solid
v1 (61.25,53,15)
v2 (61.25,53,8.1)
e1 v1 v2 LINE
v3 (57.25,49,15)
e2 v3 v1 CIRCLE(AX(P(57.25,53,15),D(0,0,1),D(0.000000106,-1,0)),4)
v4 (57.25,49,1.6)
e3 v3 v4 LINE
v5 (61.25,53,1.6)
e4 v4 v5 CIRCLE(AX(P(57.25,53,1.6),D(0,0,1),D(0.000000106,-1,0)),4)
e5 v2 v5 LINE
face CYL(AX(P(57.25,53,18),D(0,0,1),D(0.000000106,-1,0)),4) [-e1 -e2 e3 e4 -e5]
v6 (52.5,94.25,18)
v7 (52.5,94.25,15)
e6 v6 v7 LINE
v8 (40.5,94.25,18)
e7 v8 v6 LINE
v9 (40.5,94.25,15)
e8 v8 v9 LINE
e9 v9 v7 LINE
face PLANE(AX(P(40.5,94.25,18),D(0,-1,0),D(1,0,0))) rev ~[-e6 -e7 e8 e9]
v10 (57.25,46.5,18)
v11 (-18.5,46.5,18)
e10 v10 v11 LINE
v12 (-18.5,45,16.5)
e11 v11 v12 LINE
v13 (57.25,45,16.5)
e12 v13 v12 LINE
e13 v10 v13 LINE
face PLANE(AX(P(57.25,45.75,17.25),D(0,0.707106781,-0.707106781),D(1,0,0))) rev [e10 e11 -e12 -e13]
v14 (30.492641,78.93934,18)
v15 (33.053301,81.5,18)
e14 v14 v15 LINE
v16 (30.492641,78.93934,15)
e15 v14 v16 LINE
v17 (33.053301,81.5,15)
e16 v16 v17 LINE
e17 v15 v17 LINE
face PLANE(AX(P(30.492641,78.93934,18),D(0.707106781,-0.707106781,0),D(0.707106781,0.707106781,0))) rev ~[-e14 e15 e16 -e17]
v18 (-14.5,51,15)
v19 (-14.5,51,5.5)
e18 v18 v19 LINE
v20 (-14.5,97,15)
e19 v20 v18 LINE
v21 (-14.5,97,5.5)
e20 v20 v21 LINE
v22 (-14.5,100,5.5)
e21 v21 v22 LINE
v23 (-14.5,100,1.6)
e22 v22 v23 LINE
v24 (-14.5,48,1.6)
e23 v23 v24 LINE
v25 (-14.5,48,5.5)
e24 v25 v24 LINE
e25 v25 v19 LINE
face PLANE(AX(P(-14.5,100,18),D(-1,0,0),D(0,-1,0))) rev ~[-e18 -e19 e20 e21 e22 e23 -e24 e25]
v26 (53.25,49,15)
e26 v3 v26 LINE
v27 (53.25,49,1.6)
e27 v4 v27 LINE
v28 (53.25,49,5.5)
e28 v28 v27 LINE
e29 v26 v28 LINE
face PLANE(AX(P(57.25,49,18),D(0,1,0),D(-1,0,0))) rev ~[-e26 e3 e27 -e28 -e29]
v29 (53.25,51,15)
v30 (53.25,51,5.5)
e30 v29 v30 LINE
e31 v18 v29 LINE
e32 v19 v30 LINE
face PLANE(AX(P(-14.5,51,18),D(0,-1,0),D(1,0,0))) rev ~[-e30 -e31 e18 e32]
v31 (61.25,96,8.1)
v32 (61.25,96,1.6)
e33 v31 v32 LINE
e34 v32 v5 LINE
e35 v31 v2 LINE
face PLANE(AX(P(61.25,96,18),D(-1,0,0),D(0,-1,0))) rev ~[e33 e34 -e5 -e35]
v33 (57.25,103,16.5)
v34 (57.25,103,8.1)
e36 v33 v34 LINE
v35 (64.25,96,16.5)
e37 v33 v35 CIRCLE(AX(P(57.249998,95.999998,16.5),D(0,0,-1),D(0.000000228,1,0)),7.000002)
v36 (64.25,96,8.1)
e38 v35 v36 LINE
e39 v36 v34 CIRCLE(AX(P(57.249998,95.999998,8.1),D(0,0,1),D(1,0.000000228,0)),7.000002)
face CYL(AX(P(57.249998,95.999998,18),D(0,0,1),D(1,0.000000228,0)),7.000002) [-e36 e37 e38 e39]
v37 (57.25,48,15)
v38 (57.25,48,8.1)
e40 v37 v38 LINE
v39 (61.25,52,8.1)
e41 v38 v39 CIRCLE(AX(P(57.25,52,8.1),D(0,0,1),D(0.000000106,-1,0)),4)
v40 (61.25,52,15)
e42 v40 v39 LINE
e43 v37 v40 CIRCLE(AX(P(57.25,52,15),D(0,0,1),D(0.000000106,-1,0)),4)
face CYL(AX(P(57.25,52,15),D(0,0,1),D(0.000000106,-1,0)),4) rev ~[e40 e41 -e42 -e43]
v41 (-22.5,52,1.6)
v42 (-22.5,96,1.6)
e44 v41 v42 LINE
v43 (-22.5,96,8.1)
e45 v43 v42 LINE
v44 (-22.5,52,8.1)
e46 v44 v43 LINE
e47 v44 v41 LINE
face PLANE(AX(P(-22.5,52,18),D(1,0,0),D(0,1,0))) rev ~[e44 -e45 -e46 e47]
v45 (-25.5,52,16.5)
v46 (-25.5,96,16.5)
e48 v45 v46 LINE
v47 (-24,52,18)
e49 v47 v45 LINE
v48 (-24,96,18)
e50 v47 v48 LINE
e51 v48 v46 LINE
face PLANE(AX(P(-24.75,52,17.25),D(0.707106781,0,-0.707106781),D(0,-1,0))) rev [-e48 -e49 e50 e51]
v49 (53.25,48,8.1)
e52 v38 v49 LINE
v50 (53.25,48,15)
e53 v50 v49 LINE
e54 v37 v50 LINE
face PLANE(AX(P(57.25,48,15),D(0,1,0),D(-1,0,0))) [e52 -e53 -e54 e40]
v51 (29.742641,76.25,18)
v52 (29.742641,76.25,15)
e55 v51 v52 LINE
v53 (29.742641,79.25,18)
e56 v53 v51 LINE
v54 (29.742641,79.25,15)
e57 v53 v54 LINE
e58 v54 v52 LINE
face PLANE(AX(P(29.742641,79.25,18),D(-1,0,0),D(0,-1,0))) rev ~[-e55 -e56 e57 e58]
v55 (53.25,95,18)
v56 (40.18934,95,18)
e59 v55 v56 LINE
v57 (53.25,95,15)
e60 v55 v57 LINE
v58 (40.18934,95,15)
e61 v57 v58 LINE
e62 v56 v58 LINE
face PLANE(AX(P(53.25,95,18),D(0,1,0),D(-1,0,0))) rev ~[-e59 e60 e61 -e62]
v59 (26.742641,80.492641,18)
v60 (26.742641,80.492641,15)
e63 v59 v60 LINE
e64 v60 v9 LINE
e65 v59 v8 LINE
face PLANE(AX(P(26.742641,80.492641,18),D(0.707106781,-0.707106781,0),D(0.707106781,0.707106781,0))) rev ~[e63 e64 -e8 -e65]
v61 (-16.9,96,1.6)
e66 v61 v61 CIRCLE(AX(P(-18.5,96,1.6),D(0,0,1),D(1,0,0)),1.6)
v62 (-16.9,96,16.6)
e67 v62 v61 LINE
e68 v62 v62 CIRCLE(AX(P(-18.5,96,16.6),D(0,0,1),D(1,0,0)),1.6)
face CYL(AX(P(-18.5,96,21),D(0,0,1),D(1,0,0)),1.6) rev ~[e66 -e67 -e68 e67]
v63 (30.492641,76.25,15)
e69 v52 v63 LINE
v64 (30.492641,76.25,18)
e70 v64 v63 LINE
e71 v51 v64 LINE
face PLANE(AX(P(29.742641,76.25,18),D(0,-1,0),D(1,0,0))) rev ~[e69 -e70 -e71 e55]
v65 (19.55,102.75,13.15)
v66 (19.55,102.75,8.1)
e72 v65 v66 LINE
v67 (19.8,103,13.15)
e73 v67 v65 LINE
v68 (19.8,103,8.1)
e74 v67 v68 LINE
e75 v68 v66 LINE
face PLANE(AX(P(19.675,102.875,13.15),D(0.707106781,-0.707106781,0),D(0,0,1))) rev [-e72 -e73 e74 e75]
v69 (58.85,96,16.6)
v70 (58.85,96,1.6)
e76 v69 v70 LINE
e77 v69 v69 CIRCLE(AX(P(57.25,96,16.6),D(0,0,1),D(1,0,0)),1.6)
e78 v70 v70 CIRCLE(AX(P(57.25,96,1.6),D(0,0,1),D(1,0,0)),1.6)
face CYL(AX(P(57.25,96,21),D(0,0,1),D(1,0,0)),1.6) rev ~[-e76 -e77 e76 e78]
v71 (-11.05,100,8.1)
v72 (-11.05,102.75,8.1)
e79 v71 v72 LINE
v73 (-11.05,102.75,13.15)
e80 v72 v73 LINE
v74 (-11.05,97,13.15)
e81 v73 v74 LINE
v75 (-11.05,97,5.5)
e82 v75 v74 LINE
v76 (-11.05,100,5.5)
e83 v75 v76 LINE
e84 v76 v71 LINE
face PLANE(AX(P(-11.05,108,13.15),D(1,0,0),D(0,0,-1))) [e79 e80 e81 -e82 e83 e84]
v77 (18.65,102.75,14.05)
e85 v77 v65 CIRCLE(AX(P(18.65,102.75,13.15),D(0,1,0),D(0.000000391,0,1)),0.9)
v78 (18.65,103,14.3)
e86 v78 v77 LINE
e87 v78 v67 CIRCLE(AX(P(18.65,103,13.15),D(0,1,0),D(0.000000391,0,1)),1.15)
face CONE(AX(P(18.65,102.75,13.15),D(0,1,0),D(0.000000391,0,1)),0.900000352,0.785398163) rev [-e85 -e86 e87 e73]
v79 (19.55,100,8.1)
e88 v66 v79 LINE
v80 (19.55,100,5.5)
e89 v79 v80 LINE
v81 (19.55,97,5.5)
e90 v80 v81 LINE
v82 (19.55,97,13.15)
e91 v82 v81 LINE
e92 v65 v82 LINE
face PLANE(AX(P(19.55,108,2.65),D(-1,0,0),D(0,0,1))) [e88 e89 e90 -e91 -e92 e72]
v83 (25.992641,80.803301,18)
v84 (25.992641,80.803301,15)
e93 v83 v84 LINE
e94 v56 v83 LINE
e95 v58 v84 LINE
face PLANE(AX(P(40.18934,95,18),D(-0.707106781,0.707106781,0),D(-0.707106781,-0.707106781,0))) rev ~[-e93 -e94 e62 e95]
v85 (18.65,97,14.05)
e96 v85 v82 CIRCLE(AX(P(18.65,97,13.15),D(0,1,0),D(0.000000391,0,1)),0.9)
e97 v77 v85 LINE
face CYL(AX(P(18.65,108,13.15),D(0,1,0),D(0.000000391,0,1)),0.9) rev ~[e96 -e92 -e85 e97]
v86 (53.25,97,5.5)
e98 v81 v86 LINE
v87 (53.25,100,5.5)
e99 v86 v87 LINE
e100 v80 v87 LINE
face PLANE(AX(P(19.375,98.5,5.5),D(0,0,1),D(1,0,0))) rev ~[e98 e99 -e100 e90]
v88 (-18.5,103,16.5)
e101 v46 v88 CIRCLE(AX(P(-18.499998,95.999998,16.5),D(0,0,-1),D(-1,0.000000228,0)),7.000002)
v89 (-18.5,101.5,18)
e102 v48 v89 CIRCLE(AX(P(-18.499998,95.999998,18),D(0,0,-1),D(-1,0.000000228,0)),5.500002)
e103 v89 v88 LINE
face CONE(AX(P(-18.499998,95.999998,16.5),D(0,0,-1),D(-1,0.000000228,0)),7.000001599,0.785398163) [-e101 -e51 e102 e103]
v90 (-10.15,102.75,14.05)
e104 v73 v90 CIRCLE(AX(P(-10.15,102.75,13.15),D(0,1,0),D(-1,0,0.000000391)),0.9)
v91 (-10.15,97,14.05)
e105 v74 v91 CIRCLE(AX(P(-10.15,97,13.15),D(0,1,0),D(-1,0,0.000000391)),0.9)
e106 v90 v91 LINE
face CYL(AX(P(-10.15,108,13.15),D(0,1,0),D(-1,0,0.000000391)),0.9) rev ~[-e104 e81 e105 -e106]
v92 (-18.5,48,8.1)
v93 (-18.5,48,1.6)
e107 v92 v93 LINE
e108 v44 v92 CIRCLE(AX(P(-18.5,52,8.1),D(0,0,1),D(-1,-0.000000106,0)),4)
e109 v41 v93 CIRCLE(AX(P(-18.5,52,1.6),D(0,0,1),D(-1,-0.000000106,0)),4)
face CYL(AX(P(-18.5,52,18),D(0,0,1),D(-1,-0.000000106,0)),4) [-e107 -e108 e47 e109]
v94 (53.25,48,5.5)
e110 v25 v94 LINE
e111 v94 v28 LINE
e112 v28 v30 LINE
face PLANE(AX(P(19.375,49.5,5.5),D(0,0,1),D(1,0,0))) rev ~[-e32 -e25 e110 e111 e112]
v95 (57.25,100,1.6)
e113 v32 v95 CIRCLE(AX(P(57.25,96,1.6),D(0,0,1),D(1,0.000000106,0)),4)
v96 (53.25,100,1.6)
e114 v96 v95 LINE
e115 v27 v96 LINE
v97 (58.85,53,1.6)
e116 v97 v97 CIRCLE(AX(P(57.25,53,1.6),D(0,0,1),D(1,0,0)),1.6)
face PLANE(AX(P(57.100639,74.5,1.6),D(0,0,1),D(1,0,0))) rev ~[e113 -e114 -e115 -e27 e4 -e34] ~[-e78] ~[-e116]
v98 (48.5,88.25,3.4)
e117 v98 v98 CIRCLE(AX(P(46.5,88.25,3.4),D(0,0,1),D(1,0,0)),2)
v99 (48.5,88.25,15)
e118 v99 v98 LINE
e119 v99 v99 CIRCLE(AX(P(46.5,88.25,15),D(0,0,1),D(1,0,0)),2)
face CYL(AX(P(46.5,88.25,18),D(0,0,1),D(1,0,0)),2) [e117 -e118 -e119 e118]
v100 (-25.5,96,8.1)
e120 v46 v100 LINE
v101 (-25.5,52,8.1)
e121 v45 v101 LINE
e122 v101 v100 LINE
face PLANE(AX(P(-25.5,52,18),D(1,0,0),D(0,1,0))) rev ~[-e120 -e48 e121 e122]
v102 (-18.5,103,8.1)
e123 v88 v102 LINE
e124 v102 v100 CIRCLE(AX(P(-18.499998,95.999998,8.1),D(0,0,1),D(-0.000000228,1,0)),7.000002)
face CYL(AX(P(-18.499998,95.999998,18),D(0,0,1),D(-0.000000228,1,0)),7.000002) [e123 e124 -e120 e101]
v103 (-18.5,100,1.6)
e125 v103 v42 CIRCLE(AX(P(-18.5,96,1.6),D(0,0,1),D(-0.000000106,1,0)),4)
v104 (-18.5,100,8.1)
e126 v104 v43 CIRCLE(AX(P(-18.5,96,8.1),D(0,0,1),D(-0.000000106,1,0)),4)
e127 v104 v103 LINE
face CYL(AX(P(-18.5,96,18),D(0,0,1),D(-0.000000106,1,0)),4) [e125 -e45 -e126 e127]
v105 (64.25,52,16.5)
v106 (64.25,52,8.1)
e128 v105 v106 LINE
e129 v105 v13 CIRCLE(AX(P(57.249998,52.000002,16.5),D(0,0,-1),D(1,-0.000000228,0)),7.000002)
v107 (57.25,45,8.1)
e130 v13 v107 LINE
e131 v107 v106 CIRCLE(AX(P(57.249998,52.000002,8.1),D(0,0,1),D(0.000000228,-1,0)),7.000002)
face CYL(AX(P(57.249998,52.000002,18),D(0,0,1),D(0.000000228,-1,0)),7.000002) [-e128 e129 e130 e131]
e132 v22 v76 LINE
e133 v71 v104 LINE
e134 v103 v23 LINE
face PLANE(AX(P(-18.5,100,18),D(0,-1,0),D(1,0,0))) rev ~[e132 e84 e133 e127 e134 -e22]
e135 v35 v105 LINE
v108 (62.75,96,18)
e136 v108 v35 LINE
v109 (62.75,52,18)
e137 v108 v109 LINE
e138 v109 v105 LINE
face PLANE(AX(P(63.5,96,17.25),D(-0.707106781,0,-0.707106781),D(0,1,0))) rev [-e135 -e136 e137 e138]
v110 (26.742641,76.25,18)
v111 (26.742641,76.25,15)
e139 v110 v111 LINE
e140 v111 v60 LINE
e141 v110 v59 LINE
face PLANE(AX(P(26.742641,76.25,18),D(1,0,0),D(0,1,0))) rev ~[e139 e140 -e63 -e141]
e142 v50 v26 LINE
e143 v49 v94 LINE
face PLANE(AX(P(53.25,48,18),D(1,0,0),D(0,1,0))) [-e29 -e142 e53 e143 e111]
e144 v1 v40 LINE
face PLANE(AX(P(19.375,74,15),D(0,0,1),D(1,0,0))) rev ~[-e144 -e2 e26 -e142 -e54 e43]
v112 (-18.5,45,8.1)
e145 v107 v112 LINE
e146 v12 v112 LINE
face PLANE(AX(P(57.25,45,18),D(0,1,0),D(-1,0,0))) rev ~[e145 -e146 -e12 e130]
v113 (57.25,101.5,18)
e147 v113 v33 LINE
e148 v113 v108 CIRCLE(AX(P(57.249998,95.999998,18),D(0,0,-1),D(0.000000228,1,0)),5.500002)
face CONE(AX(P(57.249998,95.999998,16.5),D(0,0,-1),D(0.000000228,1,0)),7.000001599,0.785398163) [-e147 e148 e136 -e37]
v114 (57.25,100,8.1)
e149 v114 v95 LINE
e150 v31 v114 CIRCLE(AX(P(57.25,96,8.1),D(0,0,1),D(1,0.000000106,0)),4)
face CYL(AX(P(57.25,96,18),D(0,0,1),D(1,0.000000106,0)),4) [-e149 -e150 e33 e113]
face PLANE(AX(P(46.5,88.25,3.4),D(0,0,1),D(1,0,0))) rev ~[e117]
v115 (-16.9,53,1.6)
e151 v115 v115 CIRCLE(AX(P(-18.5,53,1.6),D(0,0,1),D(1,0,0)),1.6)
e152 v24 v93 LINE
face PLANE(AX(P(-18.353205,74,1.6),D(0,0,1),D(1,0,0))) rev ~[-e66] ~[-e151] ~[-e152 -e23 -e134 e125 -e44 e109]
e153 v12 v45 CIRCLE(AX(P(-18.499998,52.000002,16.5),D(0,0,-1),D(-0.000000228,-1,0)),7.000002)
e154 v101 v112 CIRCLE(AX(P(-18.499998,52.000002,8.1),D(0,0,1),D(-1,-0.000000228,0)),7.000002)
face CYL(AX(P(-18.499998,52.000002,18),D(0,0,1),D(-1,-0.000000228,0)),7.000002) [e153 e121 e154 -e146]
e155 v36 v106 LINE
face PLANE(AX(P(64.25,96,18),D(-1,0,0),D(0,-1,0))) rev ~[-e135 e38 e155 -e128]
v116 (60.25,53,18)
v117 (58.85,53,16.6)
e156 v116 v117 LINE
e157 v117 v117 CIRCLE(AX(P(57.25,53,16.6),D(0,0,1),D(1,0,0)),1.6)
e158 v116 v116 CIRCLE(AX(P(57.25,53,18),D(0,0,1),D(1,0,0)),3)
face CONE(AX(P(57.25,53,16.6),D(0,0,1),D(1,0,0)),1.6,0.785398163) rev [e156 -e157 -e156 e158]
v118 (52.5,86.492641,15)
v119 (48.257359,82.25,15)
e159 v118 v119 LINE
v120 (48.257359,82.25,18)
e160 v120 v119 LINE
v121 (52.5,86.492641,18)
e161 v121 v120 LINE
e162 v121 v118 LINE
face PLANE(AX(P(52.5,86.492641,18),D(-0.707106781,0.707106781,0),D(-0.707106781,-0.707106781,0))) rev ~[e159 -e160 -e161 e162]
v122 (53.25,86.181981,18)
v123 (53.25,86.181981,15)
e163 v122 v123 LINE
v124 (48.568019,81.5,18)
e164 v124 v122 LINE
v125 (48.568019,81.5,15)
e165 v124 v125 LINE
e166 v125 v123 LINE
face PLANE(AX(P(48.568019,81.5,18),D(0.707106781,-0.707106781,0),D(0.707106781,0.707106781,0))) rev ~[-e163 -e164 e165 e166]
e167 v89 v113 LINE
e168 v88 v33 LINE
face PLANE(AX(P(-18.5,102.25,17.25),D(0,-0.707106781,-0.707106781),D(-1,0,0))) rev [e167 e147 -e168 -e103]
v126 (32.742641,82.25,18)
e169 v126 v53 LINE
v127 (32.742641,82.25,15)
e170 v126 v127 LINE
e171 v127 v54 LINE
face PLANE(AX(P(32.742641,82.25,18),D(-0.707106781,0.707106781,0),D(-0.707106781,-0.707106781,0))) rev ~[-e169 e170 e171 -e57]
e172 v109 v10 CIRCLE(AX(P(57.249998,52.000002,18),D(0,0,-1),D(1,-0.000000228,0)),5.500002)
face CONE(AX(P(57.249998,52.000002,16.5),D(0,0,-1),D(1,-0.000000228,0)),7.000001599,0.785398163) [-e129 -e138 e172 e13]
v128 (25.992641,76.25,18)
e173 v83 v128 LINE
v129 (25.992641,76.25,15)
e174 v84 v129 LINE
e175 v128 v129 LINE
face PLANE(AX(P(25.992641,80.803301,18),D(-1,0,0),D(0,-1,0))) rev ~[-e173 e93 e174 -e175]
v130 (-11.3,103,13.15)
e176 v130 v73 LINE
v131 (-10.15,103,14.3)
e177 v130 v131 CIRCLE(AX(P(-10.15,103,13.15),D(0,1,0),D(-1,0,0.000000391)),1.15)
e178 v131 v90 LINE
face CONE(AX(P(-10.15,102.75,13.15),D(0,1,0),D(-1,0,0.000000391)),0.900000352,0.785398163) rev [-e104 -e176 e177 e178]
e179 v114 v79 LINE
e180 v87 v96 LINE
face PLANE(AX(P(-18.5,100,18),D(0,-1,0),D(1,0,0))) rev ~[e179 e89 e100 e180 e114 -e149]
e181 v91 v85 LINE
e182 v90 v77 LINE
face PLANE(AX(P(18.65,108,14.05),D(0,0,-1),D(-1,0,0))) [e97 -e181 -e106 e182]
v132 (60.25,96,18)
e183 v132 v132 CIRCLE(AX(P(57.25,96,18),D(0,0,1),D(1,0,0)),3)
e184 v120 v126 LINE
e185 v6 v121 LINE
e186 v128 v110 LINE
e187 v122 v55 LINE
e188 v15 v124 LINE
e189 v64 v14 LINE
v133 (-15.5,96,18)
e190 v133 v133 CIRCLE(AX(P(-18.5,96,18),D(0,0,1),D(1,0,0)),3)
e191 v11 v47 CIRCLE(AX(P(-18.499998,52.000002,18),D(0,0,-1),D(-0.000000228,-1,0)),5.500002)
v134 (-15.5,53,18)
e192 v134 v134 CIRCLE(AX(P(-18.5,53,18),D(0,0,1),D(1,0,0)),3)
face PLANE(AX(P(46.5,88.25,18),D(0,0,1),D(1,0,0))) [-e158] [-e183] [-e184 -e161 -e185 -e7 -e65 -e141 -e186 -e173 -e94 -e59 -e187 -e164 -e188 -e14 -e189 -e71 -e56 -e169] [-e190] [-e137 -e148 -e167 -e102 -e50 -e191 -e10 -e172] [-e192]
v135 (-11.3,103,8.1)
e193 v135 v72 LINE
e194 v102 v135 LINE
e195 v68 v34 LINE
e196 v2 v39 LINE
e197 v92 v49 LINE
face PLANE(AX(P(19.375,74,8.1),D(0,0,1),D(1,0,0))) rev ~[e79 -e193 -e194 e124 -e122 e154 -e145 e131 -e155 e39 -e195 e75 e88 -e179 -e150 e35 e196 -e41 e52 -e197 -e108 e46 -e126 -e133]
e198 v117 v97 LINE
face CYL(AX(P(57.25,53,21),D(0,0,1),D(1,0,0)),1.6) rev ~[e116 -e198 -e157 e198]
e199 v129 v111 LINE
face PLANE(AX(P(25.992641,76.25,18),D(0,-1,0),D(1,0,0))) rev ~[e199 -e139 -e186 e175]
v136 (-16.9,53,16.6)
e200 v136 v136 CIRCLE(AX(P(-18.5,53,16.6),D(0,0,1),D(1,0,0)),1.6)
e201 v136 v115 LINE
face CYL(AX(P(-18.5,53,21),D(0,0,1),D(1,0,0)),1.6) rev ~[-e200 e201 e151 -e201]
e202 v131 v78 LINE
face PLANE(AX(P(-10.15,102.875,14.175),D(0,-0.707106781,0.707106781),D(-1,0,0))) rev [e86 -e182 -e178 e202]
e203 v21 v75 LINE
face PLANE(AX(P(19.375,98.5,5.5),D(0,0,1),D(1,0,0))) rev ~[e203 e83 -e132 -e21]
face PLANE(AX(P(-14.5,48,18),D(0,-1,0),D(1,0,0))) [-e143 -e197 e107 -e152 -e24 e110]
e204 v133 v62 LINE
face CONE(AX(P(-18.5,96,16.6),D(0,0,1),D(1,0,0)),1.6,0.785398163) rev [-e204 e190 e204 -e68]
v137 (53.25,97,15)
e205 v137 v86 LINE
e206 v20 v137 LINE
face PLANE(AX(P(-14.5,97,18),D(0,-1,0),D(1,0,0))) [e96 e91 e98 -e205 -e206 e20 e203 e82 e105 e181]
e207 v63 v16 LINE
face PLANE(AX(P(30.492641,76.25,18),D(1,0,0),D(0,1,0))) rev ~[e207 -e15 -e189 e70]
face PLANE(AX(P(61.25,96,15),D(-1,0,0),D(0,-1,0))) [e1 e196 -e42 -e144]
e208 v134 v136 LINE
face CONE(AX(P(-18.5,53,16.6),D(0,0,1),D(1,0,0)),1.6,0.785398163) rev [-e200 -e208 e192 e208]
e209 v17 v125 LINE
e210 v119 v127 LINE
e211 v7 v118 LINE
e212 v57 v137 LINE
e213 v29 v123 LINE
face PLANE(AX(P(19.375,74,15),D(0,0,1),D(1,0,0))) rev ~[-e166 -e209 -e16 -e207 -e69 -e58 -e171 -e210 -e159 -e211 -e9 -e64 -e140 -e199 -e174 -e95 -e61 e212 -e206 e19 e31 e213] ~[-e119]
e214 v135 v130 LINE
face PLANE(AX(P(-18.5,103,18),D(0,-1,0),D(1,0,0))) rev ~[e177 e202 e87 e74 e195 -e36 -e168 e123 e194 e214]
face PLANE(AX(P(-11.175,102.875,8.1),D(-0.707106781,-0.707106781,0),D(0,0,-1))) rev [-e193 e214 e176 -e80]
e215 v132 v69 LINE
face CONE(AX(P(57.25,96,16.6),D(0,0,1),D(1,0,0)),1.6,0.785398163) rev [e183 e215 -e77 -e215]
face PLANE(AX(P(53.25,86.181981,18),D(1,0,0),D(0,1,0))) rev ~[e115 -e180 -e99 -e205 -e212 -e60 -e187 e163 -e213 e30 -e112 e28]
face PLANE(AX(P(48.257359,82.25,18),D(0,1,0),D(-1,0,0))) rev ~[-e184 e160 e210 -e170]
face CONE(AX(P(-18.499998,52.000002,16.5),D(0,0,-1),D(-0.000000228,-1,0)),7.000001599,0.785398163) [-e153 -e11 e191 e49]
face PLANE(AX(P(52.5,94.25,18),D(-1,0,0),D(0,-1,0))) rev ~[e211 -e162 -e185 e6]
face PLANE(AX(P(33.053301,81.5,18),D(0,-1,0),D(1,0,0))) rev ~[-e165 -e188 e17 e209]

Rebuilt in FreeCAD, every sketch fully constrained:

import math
import FreeCAD as App
import Part
import Sketcher
Q = App.Units.Quantity


def edges_at(feature, points):
    """Names of the edges that pass closest to the given points."""
    edges = feature.Shape.Edges
    near = lambda p: min(range(len(edges)), key=lambda i: edges[i].distToShape(Part.Vertex(*p))[0])
    return sorted({f"Edge{near(p) + 1}" for p in points})

doc = App.newDocument("Part")
body = doc.addObject("PartDesign::Body", "Body")

sketch1 = body.newObject("Sketcher::SketchObject", "Sketch")
sketch1.AttachmentSupport = (doc.getObject("XY_Plane"), [""])
sketch1.MapMode = "FlatFace"
sketch1.AttachmentOffset = App.Placement(App.Vector(0, 0, 18), App.Rotation())
sketch1.addGeometry(Part.ArcOfCircle(Part.Circle(App.Vector(-18, 96, 0), App.Vector(0, 0, 1), 7), math.radians(90), math.radians(180)), False)
sketch1.addGeometry(Part.LineSegment(App.Vector(-26, 96, 0), App.Vector(-26, 52, 0)), False)
sketch1.addGeometry(Part.ArcOfCircle(Part.Circle(App.Vector(-18, 52, 0), App.Vector(0, 0, 1), 7), math.radians(-180), math.radians(-90)), False)
sketch1.addGeometry(Part.LineSegment(App.Vector(-18, 45, 0), App.Vector(57, 45, 0)), False)
sketch1.addGeometry(Part.ArcOfCircle(Part.Circle(App.Vector(57, 52, 0), App.Vector(0, 0, 1), 7), math.radians(-90), math.radians(0)), False)
sketch1.addGeometry(Part.LineSegment(App.Vector(64, 52, 0), App.Vector(64, 96, 0)), False)
sketch1.addGeometry(Part.ArcOfCircle(Part.Circle(App.Vector(57, 96, 0), App.Vector(0, 0, 1), 7), math.radians(0), math.radians(90)), False)
sketch1.addGeometry(Part.LineSegment(App.Vector(57, 103, 0), App.Vector(-18, 103, 0)), False)
sketch1.addConstraint(Sketcher.Constraint("Tangent", 0, 2, 1, 1))
sketch1.addConstraint(Sketcher.Constraint("Tangent", 1, 2, 2, 1))
sketch1.addConstraint(Sketcher.Constraint("Tangent", 2, 2, 3, 1))
sketch1.addConstraint(Sketcher.Constraint("Tangent", 3, 2, 4, 1))
sketch1.addConstraint(Sketcher.Constraint("Tangent", 4, 2, 5, 1))
sketch1.addConstraint(Sketcher.Constraint("Tangent", 5, 2, 6, 1))
sketch1.addConstraint(Sketcher.Constraint("Tangent", 6, 2, 7, 1))
sketch1.addConstraint(Sketcher.Constraint("Tangent", 7, 2, 0, 1))
sketch1.addConstraint(Sketcher.Constraint("Vertical", 1))
sketch1.addConstraint(Sketcher.Constraint("Horizontal", 3))
sketch1.addConstraint(Sketcher.Constraint("Vertical", 5))
sketch1.addConstraint(Sketcher.Constraint("Horizontal", 7))
sketch1.addConstraint(Sketcher.Constraint("Equal", 0, 2))
sketch1.addConstraint(Sketcher.Constraint("Equal", 2, 4))
sketch1.addConstraint(Sketcher.Constraint("Equal", 4, 6))
sketch1.addConstraint(Sketcher.Constraint("Radius", 0, 7.000002))
sketch1.addConstraint(Sketcher.Constraint("DistanceY", 1, 2, 1, 1, 44.0))
sketch1.addConstraint(Sketcher.Constraint("DistanceY", -1, 1, 0, 3, 95.999998))
sketch1.addConstraint(Sketcher.Constraint("DistanceX", 3, 1, 3, 2, 75.75))
sketch1.addConstraint(Sketcher.Constraint("DistanceX", 0, 3, -1, 1, 18.499998))
pad1 = body.newObject("PartDesign::Pad", "Pad")
pad1.Profile = sketch1
pad1.Length = 9.9
pad1.Reversed = True

sketch2 = body.newObject("Sketcher::SketchObject", "Sketch001")
sketch2.AttachmentSupport = (doc.getObject("XY_Plane"), [""])
sketch2.MapMode = "FlatFace"
sketch2.AttachmentOffset = App.Placement(App.Vector(0, 0, 15), App.Rotation())
sketch2.addGeometry(Part.ArcOfCircle(Part.Circle(App.Vector(-18.5, 96, 0), App.Vector(0, 0, 1), 4), math.radians(90), math.radians(180)), False)
sketch2.addGeometry(Part.LineSegment(App.Vector(-22.5, 96, 0), App.Vector(-22.5, 52, 0)), False)
sketch2.addGeometry(Part.ArcOfCircle(Part.Circle(App.Vector(-18.5, 52, 0), App.Vector(0, 0, 1), 4), math.radians(-180), math.radians(-90)), False)
sketch2.addGeometry(Part.LineSegment(App.Vector(-18.5, 48, 0), App.Vector(57.2, 48, 0)), False)
sketch2.addGeometry(Part.ArcOfCircle(Part.Circle(App.Vector(57.2, 52, 0), App.Vector(0, 0, 1), 4), math.radians(-90), math.radians(0)), False)
sketch2.addGeometry(Part.LineSegment(App.Vector(61.2, 52, 0), App.Vector(61.2, 96, 0)), False)
sketch2.addGeometry(Part.ArcOfCircle(Part.Circle(App.Vector(57.2, 96, 0), App.Vector(0, 0, 1), 4), math.radians(0), math.radians(90)), False)
sketch2.addGeometry(Part.LineSegment(App.Vector(57.2, 100, 0), App.Vector(-18.5, 100, 0)), False)
sketch2.addConstraint(Sketcher.Constraint("Tangent", 0, 2, 1, 1))
sketch2.addConstraint(Sketcher.Constraint("Tangent", 1, 2, 2, 1))
sketch2.addConstraint(Sketcher.Constraint("Tangent", 2, 2, 3, 1))
sketch2.addConstraint(Sketcher.Constraint("Tangent", 3, 2, 4, 1))
sketch2.addConstraint(Sketcher.Constraint("Tangent", 4, 2, 5, 1))
sketch2.addConstraint(Sketcher.Constraint("Tangent", 5, 2, 6, 1))
sketch2.addConstraint(Sketcher.Constraint("Tangent", 6, 2, 7, 1))
sketch2.addConstraint(Sketcher.Constraint("Tangent", 7, 2, 0, 1))
sketch2.addConstraint(Sketcher.Constraint("Vertical", 1))
sketch2.addConstraint(Sketcher.Constraint("Horizontal", 3))
sketch2.addConstraint(Sketcher.Constraint("Vertical", 5))
sketch2.addConstraint(Sketcher.Constraint("Horizontal", 7))
sketch2.addConstraint(Sketcher.Constraint("Equal", 0, 2))
sketch2.addConstraint(Sketcher.Constraint("Equal", 2, 4))
sketch2.addConstraint(Sketcher.Constraint("Equal", 4, 6))
sketch2.addConstraint(Sketcher.Constraint("Radius", 0, 4.0))
sketch2.addConstraint(Sketcher.Constraint("DistanceY", 1, 2, 1, 1, 44.0))
sketch2.addConstraint(Sketcher.Constraint("DistanceY", -1, 1, 0, 3, 96.0))
sketch2.addConstraint(Sketcher.Constraint("DistanceX", 3, 1, 3, 2, 75.75))
sketch2.addConstraint(Sketcher.Constraint("DistanceX", 0, 3, -1, 1, 18.5))
pocket1 = body.newObject("PartDesign::Pocket", "Pocket")
pocket1.Profile = sketch2
pocket1.Length = 10

sketch3 = body.newObject("Sketcher::SketchObject", "Sketch002")
sketch3.AttachmentSupport = (doc.getObject("XY_Plane"), [""])
sketch3.MapMode = "FlatFace"
sketch3.AttachmentOffset = App.Placement(App.Vector(0, 0, 18), App.Rotation())
sketch3.addGeometry(Part.ArcOfCircle(Part.Circle(App.Vector(-18.5, 52, 0), App.Vector(0, 0, 1), 4), math.radians(-180), math.radians(-90)), False)
sketch3.addGeometry(Part.LineSegment(App.Vector(-18.5, 48, 0), App.Vector(-14.5, 48, 0)), False)
sketch3.addGeometry(Part.LineSegment(App.Vector(-14.5, 48, 0), App.Vector(-14.5, 100, 0)), False)
sketch3.addGeometry(Part.LineSegment(App.Vector(-14.5, 100, 0), App.Vector(-18.5, 100, 0)), False)
sketch3.addGeometry(Part.ArcOfCircle(Part.Circle(App.Vector(-18.5, 96, 0), App.Vector(0, 0, 1), 4), math.radians(90), math.radians(180)), False)
sketch3.addGeometry(Part.LineSegment(App.Vector(-22.5, 96, 0), App.Vector(-22.5, 52, 0)), False)
sketch3.addGeometry(Part.ArcOfCircle(Part.Circle(App.Vector(57.2, 96, 0), App.Vector(0, 0, 1), 4), math.radians(0), math.radians(90)), False)
sketch3.addGeometry(Part.LineSegment(App.Vector(57.2, 100, 0), App.Vector(53.2, 100, 0)), False)
sketch3.addGeometry(Part.LineSegment(App.Vector(53.2, 100, 0), App.Vector(53.2, 49, 0)), False)
sketch3.addGeometry(Part.LineSegment(App.Vector(53.2, 49, 0), App.Vector(57.2, 49, 0)), False)
sketch3.addGeometry(Part.ArcOfCircle(Part.Circle(App.Vector(57.2, 53, 0), App.Vector(0, 0, 1), 4), math.radians(-90), math.radians(0)), False)
sketch3.addGeometry(Part.LineSegment(App.Vector(61.2, 53, 0), App.Vector(61.2, 96, 0)), False)
sketch3.addConstraint(Sketcher.Constraint("Tangent", 0, 2, 1, 1))
sketch3.addConstraint(Sketcher.Constraint("Coincident", 1, 2, 2, 1))
sketch3.addConstraint(Sketcher.Constraint("Coincident", 2, 2, 3, 1))
sketch3.addConstraint(Sketcher.Constraint("Tangent", 3, 2, 4, 1))
sketch3.addConstraint(Sketcher.Constraint("Tangent", 4, 2, 5, 1))
sketch3.addConstraint(Sketcher.Constraint("Tangent", 5, 2, 0, 1))
sketch3.addConstraint(Sketcher.Constraint("Tangent", 6, 2, 7, 1))
sketch3.addConstraint(Sketcher.Constraint("Coincident", 7, 2, 8, 1))
sketch3.addConstraint(Sketcher.Constraint("Coincident", 8, 2, 9, 1))
sketch3.addConstraint(Sketcher.Constraint("Tangent", 9, 2, 10, 1))
sketch3.addConstraint(Sketcher.Constraint("Tangent", 10, 2, 11, 1))
sketch3.addConstraint(Sketcher.Constraint("Tangent", 11, 2, 6, 1))
sketch3.addConstraint(Sketcher.Constraint("Horizontal", 1))
sketch3.addConstraint(Sketcher.Constraint("Vertical", 2))
sketch3.addConstraint(Sketcher.Constraint("Horizontal", 3))
sketch3.addConstraint(Sketcher.Constraint("Vertical", 5))
sketch3.addConstraint(Sketcher.Constraint("Horizontal", 7))
sketch3.addConstraint(Sketcher.Constraint("Vertical", 8))
sketch3.addConstraint(Sketcher.Constraint("Horizontal", 9))
sketch3.addConstraint(Sketcher.Constraint("Vertical", 11))
sketch3.addConstraint(Sketcher.Constraint("Equal", 0, 4))
sketch3.addConstraint(Sketcher.Constraint("Equal", 4, 6))
sketch3.addConstraint(Sketcher.Constraint("Equal", 6, 10))
sketch3.addConstraint(Sketcher.Constraint("Horizontal", 4, 3, 6, 3))
sketch3.addConstraint(Sketcher.Constraint("Equal", 3, 7))
sketch3.addConstraint(Sketcher.Constraint("Radius", 0, 4.0))
sketch3.addConstraint(Sketcher.Constraint("DistanceX", 1, 1, 1, 2, 4.0))
sketch3.addConstraint(Sketcher.Constraint("DistanceY", 2, 1, 2, 2, 52.0))
sketch3.addConstraint(Sketcher.Constraint("DistanceY", 8, 2, 8, 1, 51.0))
sketch3.addConstraint(Sketcher.Constraint("DistanceY", -1, 1, 0, 3, 52.0))
sketch3.addConstraint(Sketcher.Constraint("DistanceX", 0, 3, -1, 1, 18.5))
sketch3.addConstraint(Sketcher.Constraint("DistanceX", -1, 1, 6, 3, 57.25))
pad2 = body.newObject("PartDesign::Pad", "Pad001")
pad2.Profile = sketch3
pad2.Length = 16.4
pad2.Reversed = True

sketch4 = body.newObject("Sketcher::SketchObject", "Sketch003")
sketch4.AttachmentSupport = (doc.getObject("XY_Plane"), [""])
sketch4.MapMode = "FlatFace"
sketch4.AttachmentOffset = App.Placement(App.Vector(0, 0, 18), App.Rotation())
sketch4.addGeometry(Part.LineSegment(App.Vector(-14.5, 100, 0), App.Vector(-14.5, 97, 0)), False)
sketch4.addGeometry(Part.LineSegment(App.Vector(-14.5, 97, 0), App.Vector(53.2, 97, 0)), False)
sketch4.addGeometry(Part.LineSegment(App.Vector(53.2, 97, 0), App.Vector(53.2, 100, 0)), False)
sketch4.addGeometry(Part.LineSegment(App.Vector(53.2, 100, 0), App.Vector(-14.5, 100, 0)), False)
sketch4.addGeometry(Part.LineSegment(App.Vector(-14.5, 51, 0), App.Vector(-14.5, 48, 0)), False)
sketch4.addGeometry(Part.LineSegment(App.Vector(-14.5, 48, 0), App.Vector(53.2, 48, 0)), False)
sketch4.addGeometry(Part.LineSegment(App.Vector(53.2, 48, 0), App.Vector(53.2, 51, 0)), False)
sketch4.addGeometry(Part.LineSegment(App.Vector(53.2, 51, 0), App.Vector(-14.5, 51, 0)), False)
sketch4.addConstraint(Sketcher.Constraint("Coincident", 0, 2, 1, 1))
sketch4.addConstraint(Sketcher.Constraint("Coincident", 1, 2, 2, 1))
sketch4.addConstraint(Sketcher.Constraint("Coincident", 2, 2, 3, 1))
sketch4.addConstraint(Sketcher.Constraint("Coincident", 3, 2, 0, 1))
sketch4.addConstraint(Sketcher.Constraint("Coincident", 4, 2, 5, 1))
sketch4.addConstraint(Sketcher.Constraint("Coincident", 5, 2, 6, 1))
sketch4.addConstraint(Sketcher.Constraint("Coincident", 6, 2, 7, 1))
sketch4.addConstraint(Sketcher.Constraint("Coincident", 7, 2, 4, 1))
sketch4.addConstraint(Sketcher.Constraint("Vertical", 0))
sketch4.addConstraint(Sketcher.Constraint("Horizontal", 1))
sketch4.addConstraint(Sketcher.Constraint("Vertical", 2))
sketch4.addConstraint(Sketcher.Constraint("Horizontal", 3))
sketch4.addConstraint(Sketcher.Constraint("Vertical", 4))
sketch4.addConstraint(Sketcher.Constraint("Horizontal", 5))
sketch4.addConstraint(Sketcher.Constraint("Vertical", 6))
sketch4.addConstraint(Sketcher.Constraint("Horizontal", 7))
sketch4.addConstraint(Sketcher.Constraint("Vertical", 3, 2, 4, 2))
sketch4.addConstraint(Sketcher.Constraint("Vertical", 2, 2, 5, 2))
sketch4.addConstraint(Sketcher.Constraint("Equal", 2, 4))
sketch4.addConstraint(Sketcher.Constraint("DistanceY", 0, 2, 0, 1, 3.0))
sketch4.addConstraint(Sketcher.Constraint("DistanceY", -1, 1, 0, 2, 97.0))
sketch4.addConstraint(Sketcher.Constraint("DistanceY", -1, 1, 4, 2, 48.0))
sketch4.addConstraint(Sketcher.Constraint("DistanceX", 1, 1, 1, 2, 67.75))
sketch4.addConstraint(Sketcher.Constraint("DistanceX", 0, 2, -1, 1, 14.5))
pad3 = body.newObject("PartDesign::Pad", "Pad002")
pad3.Profile = sketch4
pad3.Length = 12.5
pad3.Reversed = True

sketch5 = body.newObject("Sketcher::SketchObject", "Sketch004")
sketch5.AttachmentSupport = (doc.getObject("XZ_Plane"), [""])
sketch5.MapMode = "FlatFace"
sketch5.AttachmentOffset = App.Placement(App.Vector(0, 0, -108), App.Rotation())
sketch5.addGeometry(Part.ArcOfCircle(Part.Circle(App.Vector(18.6, 13.1, 0), App.Vector(0, 0, 1), 0.9), math.radians(0), math.radians(90)), False)
sketch5.addGeometry(Part.LineSegment(App.Vector(19.6, 13.2, 0), App.Vector(19.6, 2.6, 0)), False)
sketch5.addGeometry(Part.ArcOfCircle(Part.Circle(App.Vector(18.6, 2.7, 0), App.Vector(0, 0, 1), 0.9), math.radians(-90), math.radians(0)), False)
sketch5.addGeometry(Part.LineSegment(App.Vector(18.6, 1.8, 0), App.Vector(-10.2, 1.8, 0)), False)
sketch5.addGeometry(Part.ArcOfCircle(Part.Circle(App.Vector(-10.1, 2.7, 0), App.Vector(0, 0, 1), 0.9), math.radians(-180), math.radians(-90)), False)
sketch5.addGeometry(Part.LineSegment(App.Vector(-11.1, 2.6, 0), App.Vector(-11.1, 13.2, 0)), False)
sketch5.addGeometry(Part.ArcOfCircle(Part.Circle(App.Vector(-10.1, 13.1, 0), App.Vector(0, 0, 1), 0.9), math.radians(90), math.radians(180)), False)
sketch5.addGeometry(Part.LineSegment(App.Vector(-10.2, 14.1, 0), App.Vector(18.6, 14.1, 0)), False)
sketch5.addConstraint(Sketcher.Constraint("Tangent", 0, 1, 1, 1))
sketch5.addConstraint(Sketcher.Constraint("Tangent", 1, 2, 2, 2))
sketch5.addConstraint(Sketcher.Constraint("Tangent", 2, 1, 3, 1))
sketch5.addConstraint(Sketcher.Constraint("Tangent", 3, 2, 4, 2))
sketch5.addConstraint(Sketcher.Constraint("Tangent", 4, 1, 5, 1))
sketch5.addConstraint(Sketcher.Constraint("Tangent", 5, 2, 6, 2))
sketch5.addConstraint(Sketcher.Constraint("Tangent", 6, 1, 7, 1))
sketch5.addConstraint(Sketcher.Constraint("Tangent", 7, 2, 0, 2))
sketch5.addConstraint(Sketcher.Constraint("Vertical", 1))
sketch5.addConstraint(Sketcher.Constraint("Horizontal", 3))
sketch5.addConstraint(Sketcher.Constraint("Vertical", 5))
sketch5.addConstraint(Sketcher.Constraint("Horizontal", 7))
sketch5.addConstraint(Sketcher.Constraint("Equal", 0, 2))
sketch5.addConstraint(Sketcher.Constraint("Equal", 2, 4))
sketch5.addConstraint(Sketcher.Constraint("Equal", 4, 6))
sketch5.addConstraint(Sketcher.Constraint("Radius", 0, 0.9))
sketch5.addConstraint(Sketcher.Constraint("DistanceX", 3, 2, 3, 1, 28.8))
sketch5.addConstraint(Sketcher.Constraint("DistanceY", 1, 2, 1, 1, 10.5))
sketch5.addConstraint(Sketcher.Constraint("DistanceX", -1, 1, 0, 3, 18.65))
sketch5.addConstraint(Sketcher.Constraint("DistanceY", -1, 1, 0, 3, 13.15))
pocket2 = body.newObject("PartDesign::Pocket", "Pocket001")
pocket2.Profile = sketch5
pocket2.Length = 13
pocket2.Reversed = True

sketch6 = body.newObject("Sketcher::SketchObject", "Sketch005")
sketch6.AttachmentSupport = (doc.getObject("XY_Plane"), [""])
sketch6.MapMode = "FlatFace"
sketch6.AttachmentOffset = App.Placement(App.Vector(0, 0, 21), App.Rotation())
sketch6.addGeometry(Part.Circle(App.Vector(-18.5, 96, 0), App.Vector(0, 0, 1), 1.6), False)
sketch6.addGeometry(Part.Circle(App.Vector(-18.5, 53, 0), App.Vector(0, 0, 1), 1.6), False)
sketch6.addGeometry(Part.Circle(App.Vector(57.2, 53, 0), App.Vector(0, 0, 1), 1.6), False)
sketch6.addGeometry(Part.Circle(App.Vector(57.2, 96, 0), App.Vector(0, 0, 1), 1.6), False)
sketch6.addConstraint(Sketcher.Constraint("Equal", 0, 1))
sketch6.addConstraint(Sketcher.Constraint("Equal", 1, 2))
sketch6.addConstraint(Sketcher.Constraint("Equal", 2, 3))
sketch6.addConstraint(Sketcher.Constraint("Horizontal", 1, 3, 2, 3))
sketch6.addConstraint(Sketcher.Constraint("Horizontal", 0, 3, 3, 3))
sketch6.addConstraint(Sketcher.Constraint("Vertical", 0, 3, 1, 3))
sketch6.addConstraint(Sketcher.Constraint("Vertical", 2, 3, 3, 3))
sketch6.addConstraint(Sketcher.Constraint("Diameter", 0, 3.2))
sketch6.addConstraint(Sketcher.Constraint("DistanceY", -1, 1, 0, 3, 96.0))
sketch6.addConstraint(Sketcher.Constraint("DistanceY", -1, 1, 1, 3, 53.0))
sketch6.addConstraint(Sketcher.Constraint("DistanceX", 0, 3, -1, 1, 18.5))
sketch6.addConstraint(Sketcher.Constraint("DistanceX", -1, 1, 2, 3, 57.25))
pocket3 = body.newObject("PartDesign::Pocket", "Pocket002")
pocket3.Profile = sketch6
pocket3.Type = "ThroughAll"

sketch7 = body.newObject("Sketcher::SketchObject", "Sketch006")
sketch7.AttachmentSupport = (doc.getObject("XY_Plane"), [""])
sketch7.MapMode = "FlatFace"
sketch7.AttachmentOffset = App.Placement(App.Vector(0, 0, 18), App.Rotation())
sketch7.addGeometry(Part.Circle(App.Vector(46.5, 88.2, 0), App.Vector(0, 0, 1), 2), False)
sketch7.addConstraint(Sketcher.Constraint("Diameter", 0, 4.0))
sketch7.addConstraint(Sketcher.Constraint("DistanceX", -1, 1, 0, 3, 46.5))
sketch7.addConstraint(Sketcher.Constraint("DistanceY", -1, 1, 0, 3, 88.25))
pad4 = body.newObject("PartDesign::Pad", "Pad003")
pad4.Profile = sketch7
pad4.Length = 14.6
pad4.Reversed = True

sketch8 = body.newObject("Sketcher::SketchObject", "Sketch007")
sketch8.AttachmentSupport = (doc.getObject("XY_Plane"), [""])
sketch8.MapMode = "FlatFace"
sketch8.AttachmentOffset = App.Placement(App.Vector(0, 0, 18), App.Rotation())
sketch8.addGeometry(Part.LineSegment(App.Vector(40.5, 94.2, 0), App.Vector(52.5, 94.2, 0)), False)
sketch8.addGeometry(Part.LineSegment(App.Vector(52.5, 94.2, 0), App.Vector(52.5, 86.5, 0)), False)
sketch8.addGeometry(Part.LineSegment(App.Vector(52.5, 86.5, 0), App.Vector(48.3, 82.2, 0)), False)
sketch8.addGeometry(Part.LineSegment(App.Vector(48.3, 82.2, 0), App.Vector(32.7, 82.2, 0)), False)
sketch8.addGeometry(Part.LineSegment(App.Vector(32.7, 82.2, 0), App.Vector(29.7, 79.2, 0)), False)
sketch8.addGeometry(Part.LineSegment(App.Vector(29.7, 79.2, 0), App.Vector(29.7, 76.2, 0)), False)
sketch8.addGeometry(Part.LineSegment(App.Vector(29.7, 76.2, 0), App.Vector(30.5, 76.2, 0)), False)
sketch8.addGeometry(Part.LineSegment(App.Vector(30.5, 76.2, 0), App.Vector(30.5, 78.9, 0)), False)
sketch8.addGeometry(Part.LineSegment(App.Vector(30.5, 78.9, 0), App.Vector(33.1, 81.5, 0)), False)
sketch8.addGeometry(Part.LineSegment(App.Vector(33.1, 81.5, 0), App.Vector(48.6, 81.5, 0)), False)
sketch8.addGeometry(Part.LineSegment(App.Vector(48.6, 81.5, 0), App.Vector(53.2, 86.2, 0)), False)
sketch8.addGeometry(Part.LineSegment(App.Vector(53.2, 86.2, 0), App.Vector(53.2, 95, 0)), False)
sketch8.addGeometry(Part.LineSegment(App.Vector(53.2, 95, 0), App.Vector(40.2, 95, 0)), False)
sketch8.addGeometry(Part.LineSegment(App.Vector(40.2, 95, 0), App.Vector(26, 80.8, 0)), False)
sketch8.addGeometry(Part.LineSegment(App.Vector(26, 80.8, 0), App.Vector(26, 76.2, 0)), False)
sketch8.addGeometry(Part.LineSegment(App.Vector(26, 76.2, 0), App.Vector(26.7, 76.2, 0)), False)
sketch8.addGeometry(Part.LineSegment(App.Vector(26.7, 76.2, 0), App.Vector(26.7, 80.5, 0)), False)
sketch8.addGeometry(Part.LineSegment(App.Vector(26.7, 80.5, 0), App.Vector(40.5, 94.2, 0)), False)
sketch8.addConstraint(Sketcher.Constraint("Coincident", 0, 2, 1, 1))
sketch8.addConstraint(Sketcher.Constraint("Coincident", 1, 2, 2, 1))
sketch8.addConstraint(Sketcher.Constraint("Coincident", 2, 2, 3, 1))
sketch8.addConstraint(Sketcher.Constraint("Coincident", 3, 2, 4, 1))
sketch8.addConstraint(Sketcher.Constraint("Coincident", 4, 2, 5, 1))
sketch8.addConstraint(Sketcher.Constraint("Coincident", 5, 2, 6, 1))
sketch8.addConstraint(Sketcher.Constraint("Coincident", 6, 2, 7, 1))
sketch8.addConstraint(Sketcher.Constraint("Coincident", 7, 2, 8, 1))
sketch8.addConstraint(Sketcher.Constraint("Coincident", 8, 2, 9, 1))
sketch8.addConstraint(Sketcher.Constraint("Coincident", 9, 2, 10, 1))
sketch8.addConstraint(Sketcher.Constraint("Coincident", 10, 2, 11, 1))
sketch8.addConstraint(Sketcher.Constraint("Coincident", 11, 2, 12, 1))
sketch8.addConstraint(Sketcher.Constraint("Coincident", 12, 2, 13, 1))
sketch8.addConstraint(Sketcher.Constraint("Coincident", 13, 2, 14, 1))
sketch8.addConstraint(Sketcher.Constraint("Coincident", 14, 2, 15, 1))
sketch8.addConstraint(Sketcher.Constraint("Coincident", 15, 2, 16, 1))
sketch8.addConstraint(Sketcher.Constraint("Coincident", 16, 2, 17, 1))
sketch8.addConstraint(Sketcher.Constraint("Coincident", 17, 2, 0, 1))
sketch8.addConstraint(Sketcher.Constraint("Horizontal", 0))
sketch8.addConstraint(Sketcher.Constraint("Vertical", 1))
sketch8.addConstraint(Sketcher.Constraint("Horizontal", 3))
sketch8.addConstraint(Sketcher.Constraint("Vertical", 5))
sketch8.addConstraint(Sketcher.Constraint("Horizontal", 6))
sketch8.addConstraint(Sketcher.Constraint("Vertical", 7))
sketch8.addConstraint(Sketcher.Constraint("Horizontal", 9))
sketch8.addConstraint(Sketcher.Constraint("Vertical", 11))
sketch8.addConstraint(Sketcher.Constraint("Horizontal", 12))
sketch8.addConstraint(Sketcher.Constraint("Vertical", 14))
sketch8.addConstraint(Sketcher.Constraint("Horizontal", 15))
sketch8.addConstraint(Sketcher.Constraint("Vertical", 16))
sketch8.addConstraint(Sketcher.Constraint("Parallel", 2, 4))
sketch8.addConstraint(Sketcher.Constraint("Parallel", 4, 8))
sketch8.addConstraint(Sketcher.Constraint("Parallel", 8, 10))
sketch8.addConstraint(Sketcher.Constraint("Parallel", 10, 13))
sketch8.addConstraint(Sketcher.Constraint("Parallel", 13, 17))
sketch8.addConstraint(Sketcher.Constraint("Horizontal", 6, 2, 14, 2))
sketch8.addConstraint(Sketcher.Constraint("Equal", 3, 9))
sketch8.addConstraint(Sketcher.Constraint("Equal", 6, 15))
sketch8.addConstraint(Sketcher.Constraint("DistanceX", 0, 1, 0, 2, 12.0))
sketch8.addConstraint(Sketcher.Constraint("DistanceY", 5, 2, 5, 1, 3.0))
sketch8.addConstraint(Sketcher.Constraint("Angle", 2, Q("-135 deg")))
sketch8.addConstraint(Sketcher.Constraint("Distance", 2, 6.0))
sketch8.addConstraint(Sketcher.Constraint("DistanceY", -1, 1, 11, 2, 95.0))
sketch8.addConstraint(Sketcher.Constraint("DistanceY", 2, 2, 0, 2, 12.0))
sketch8.addConstraint(Sketcher.Constraint("DistanceX", 4, 2, 3, 2, 3.0))
sketch8.addConstraint(Sketcher.Constraint("DistanceX", 15, 2, 5, 2, 3.0))
sketch8.addConstraint(Sketcher.Constraint("DistanceX", 6, 1, 6, 2, 0.75))
sketch8.addConstraint(Sketcher.Constraint("DistanceX", -1, 1, 0, 2, 52.5))
sketch8.addConstraint(Sketcher.Constraint("DistanceY", -1, 1, 8, 2, 81.5))
sketch8.addConstraint(Sketcher.Constraint("DistanceY", -1, 1, 0, 2, 94.25))
sketch8.addConstraint(Sketcher.Constraint("DistanceX", -1, 1, 10, 2, 53.25))
sketch8.addConstraint(Sketcher.Constraint("DistanceY", 14, 2, 14, 1, 4.553301))
sketch8.addConstraint(Sketcher.Constraint("DistanceX", 3, 2, 3, 1, 15.514718))
sketch8.addConstraint(Sketcher.Constraint("DistanceY", 7, 1, 7, 2, 2.68934))
pocket4 = body.newObject("PartDesign::Pocket", "Pocket003")
pocket4.Profile = sketch8
pocket4.Length = 3
doc.recompute()

chamfer = body.newObject("PartDesign::Chamfer", "Chamfer")
chamfer.Base = (pocket4, edges_at(pocket4, [(64.25, 74, 18)]))
chamfer.Size = 1.5
doc.recompute()

chamfer2 = body.newObject("PartDesign::Chamfer", "Chamfer001")
chamfer2.Base = (chamfer, edges_at(chamfer, [
    (55.65, 96, 18),
    (55.65, 53, 18),
    (-20.1, 53, 18),
    (-20.1, 96, 18),
]))
chamfer2.Size = 1.4
doc.recompute()

chamfer3 = body.newObject("PartDesign::Chamfer", "Chamfer002")
chamfer3.Base = (chamfer2, edges_at(chamfer2, [(19.55, 103, 10.625)]))
chamfer3.Size = 0.25

doc.recompute()
